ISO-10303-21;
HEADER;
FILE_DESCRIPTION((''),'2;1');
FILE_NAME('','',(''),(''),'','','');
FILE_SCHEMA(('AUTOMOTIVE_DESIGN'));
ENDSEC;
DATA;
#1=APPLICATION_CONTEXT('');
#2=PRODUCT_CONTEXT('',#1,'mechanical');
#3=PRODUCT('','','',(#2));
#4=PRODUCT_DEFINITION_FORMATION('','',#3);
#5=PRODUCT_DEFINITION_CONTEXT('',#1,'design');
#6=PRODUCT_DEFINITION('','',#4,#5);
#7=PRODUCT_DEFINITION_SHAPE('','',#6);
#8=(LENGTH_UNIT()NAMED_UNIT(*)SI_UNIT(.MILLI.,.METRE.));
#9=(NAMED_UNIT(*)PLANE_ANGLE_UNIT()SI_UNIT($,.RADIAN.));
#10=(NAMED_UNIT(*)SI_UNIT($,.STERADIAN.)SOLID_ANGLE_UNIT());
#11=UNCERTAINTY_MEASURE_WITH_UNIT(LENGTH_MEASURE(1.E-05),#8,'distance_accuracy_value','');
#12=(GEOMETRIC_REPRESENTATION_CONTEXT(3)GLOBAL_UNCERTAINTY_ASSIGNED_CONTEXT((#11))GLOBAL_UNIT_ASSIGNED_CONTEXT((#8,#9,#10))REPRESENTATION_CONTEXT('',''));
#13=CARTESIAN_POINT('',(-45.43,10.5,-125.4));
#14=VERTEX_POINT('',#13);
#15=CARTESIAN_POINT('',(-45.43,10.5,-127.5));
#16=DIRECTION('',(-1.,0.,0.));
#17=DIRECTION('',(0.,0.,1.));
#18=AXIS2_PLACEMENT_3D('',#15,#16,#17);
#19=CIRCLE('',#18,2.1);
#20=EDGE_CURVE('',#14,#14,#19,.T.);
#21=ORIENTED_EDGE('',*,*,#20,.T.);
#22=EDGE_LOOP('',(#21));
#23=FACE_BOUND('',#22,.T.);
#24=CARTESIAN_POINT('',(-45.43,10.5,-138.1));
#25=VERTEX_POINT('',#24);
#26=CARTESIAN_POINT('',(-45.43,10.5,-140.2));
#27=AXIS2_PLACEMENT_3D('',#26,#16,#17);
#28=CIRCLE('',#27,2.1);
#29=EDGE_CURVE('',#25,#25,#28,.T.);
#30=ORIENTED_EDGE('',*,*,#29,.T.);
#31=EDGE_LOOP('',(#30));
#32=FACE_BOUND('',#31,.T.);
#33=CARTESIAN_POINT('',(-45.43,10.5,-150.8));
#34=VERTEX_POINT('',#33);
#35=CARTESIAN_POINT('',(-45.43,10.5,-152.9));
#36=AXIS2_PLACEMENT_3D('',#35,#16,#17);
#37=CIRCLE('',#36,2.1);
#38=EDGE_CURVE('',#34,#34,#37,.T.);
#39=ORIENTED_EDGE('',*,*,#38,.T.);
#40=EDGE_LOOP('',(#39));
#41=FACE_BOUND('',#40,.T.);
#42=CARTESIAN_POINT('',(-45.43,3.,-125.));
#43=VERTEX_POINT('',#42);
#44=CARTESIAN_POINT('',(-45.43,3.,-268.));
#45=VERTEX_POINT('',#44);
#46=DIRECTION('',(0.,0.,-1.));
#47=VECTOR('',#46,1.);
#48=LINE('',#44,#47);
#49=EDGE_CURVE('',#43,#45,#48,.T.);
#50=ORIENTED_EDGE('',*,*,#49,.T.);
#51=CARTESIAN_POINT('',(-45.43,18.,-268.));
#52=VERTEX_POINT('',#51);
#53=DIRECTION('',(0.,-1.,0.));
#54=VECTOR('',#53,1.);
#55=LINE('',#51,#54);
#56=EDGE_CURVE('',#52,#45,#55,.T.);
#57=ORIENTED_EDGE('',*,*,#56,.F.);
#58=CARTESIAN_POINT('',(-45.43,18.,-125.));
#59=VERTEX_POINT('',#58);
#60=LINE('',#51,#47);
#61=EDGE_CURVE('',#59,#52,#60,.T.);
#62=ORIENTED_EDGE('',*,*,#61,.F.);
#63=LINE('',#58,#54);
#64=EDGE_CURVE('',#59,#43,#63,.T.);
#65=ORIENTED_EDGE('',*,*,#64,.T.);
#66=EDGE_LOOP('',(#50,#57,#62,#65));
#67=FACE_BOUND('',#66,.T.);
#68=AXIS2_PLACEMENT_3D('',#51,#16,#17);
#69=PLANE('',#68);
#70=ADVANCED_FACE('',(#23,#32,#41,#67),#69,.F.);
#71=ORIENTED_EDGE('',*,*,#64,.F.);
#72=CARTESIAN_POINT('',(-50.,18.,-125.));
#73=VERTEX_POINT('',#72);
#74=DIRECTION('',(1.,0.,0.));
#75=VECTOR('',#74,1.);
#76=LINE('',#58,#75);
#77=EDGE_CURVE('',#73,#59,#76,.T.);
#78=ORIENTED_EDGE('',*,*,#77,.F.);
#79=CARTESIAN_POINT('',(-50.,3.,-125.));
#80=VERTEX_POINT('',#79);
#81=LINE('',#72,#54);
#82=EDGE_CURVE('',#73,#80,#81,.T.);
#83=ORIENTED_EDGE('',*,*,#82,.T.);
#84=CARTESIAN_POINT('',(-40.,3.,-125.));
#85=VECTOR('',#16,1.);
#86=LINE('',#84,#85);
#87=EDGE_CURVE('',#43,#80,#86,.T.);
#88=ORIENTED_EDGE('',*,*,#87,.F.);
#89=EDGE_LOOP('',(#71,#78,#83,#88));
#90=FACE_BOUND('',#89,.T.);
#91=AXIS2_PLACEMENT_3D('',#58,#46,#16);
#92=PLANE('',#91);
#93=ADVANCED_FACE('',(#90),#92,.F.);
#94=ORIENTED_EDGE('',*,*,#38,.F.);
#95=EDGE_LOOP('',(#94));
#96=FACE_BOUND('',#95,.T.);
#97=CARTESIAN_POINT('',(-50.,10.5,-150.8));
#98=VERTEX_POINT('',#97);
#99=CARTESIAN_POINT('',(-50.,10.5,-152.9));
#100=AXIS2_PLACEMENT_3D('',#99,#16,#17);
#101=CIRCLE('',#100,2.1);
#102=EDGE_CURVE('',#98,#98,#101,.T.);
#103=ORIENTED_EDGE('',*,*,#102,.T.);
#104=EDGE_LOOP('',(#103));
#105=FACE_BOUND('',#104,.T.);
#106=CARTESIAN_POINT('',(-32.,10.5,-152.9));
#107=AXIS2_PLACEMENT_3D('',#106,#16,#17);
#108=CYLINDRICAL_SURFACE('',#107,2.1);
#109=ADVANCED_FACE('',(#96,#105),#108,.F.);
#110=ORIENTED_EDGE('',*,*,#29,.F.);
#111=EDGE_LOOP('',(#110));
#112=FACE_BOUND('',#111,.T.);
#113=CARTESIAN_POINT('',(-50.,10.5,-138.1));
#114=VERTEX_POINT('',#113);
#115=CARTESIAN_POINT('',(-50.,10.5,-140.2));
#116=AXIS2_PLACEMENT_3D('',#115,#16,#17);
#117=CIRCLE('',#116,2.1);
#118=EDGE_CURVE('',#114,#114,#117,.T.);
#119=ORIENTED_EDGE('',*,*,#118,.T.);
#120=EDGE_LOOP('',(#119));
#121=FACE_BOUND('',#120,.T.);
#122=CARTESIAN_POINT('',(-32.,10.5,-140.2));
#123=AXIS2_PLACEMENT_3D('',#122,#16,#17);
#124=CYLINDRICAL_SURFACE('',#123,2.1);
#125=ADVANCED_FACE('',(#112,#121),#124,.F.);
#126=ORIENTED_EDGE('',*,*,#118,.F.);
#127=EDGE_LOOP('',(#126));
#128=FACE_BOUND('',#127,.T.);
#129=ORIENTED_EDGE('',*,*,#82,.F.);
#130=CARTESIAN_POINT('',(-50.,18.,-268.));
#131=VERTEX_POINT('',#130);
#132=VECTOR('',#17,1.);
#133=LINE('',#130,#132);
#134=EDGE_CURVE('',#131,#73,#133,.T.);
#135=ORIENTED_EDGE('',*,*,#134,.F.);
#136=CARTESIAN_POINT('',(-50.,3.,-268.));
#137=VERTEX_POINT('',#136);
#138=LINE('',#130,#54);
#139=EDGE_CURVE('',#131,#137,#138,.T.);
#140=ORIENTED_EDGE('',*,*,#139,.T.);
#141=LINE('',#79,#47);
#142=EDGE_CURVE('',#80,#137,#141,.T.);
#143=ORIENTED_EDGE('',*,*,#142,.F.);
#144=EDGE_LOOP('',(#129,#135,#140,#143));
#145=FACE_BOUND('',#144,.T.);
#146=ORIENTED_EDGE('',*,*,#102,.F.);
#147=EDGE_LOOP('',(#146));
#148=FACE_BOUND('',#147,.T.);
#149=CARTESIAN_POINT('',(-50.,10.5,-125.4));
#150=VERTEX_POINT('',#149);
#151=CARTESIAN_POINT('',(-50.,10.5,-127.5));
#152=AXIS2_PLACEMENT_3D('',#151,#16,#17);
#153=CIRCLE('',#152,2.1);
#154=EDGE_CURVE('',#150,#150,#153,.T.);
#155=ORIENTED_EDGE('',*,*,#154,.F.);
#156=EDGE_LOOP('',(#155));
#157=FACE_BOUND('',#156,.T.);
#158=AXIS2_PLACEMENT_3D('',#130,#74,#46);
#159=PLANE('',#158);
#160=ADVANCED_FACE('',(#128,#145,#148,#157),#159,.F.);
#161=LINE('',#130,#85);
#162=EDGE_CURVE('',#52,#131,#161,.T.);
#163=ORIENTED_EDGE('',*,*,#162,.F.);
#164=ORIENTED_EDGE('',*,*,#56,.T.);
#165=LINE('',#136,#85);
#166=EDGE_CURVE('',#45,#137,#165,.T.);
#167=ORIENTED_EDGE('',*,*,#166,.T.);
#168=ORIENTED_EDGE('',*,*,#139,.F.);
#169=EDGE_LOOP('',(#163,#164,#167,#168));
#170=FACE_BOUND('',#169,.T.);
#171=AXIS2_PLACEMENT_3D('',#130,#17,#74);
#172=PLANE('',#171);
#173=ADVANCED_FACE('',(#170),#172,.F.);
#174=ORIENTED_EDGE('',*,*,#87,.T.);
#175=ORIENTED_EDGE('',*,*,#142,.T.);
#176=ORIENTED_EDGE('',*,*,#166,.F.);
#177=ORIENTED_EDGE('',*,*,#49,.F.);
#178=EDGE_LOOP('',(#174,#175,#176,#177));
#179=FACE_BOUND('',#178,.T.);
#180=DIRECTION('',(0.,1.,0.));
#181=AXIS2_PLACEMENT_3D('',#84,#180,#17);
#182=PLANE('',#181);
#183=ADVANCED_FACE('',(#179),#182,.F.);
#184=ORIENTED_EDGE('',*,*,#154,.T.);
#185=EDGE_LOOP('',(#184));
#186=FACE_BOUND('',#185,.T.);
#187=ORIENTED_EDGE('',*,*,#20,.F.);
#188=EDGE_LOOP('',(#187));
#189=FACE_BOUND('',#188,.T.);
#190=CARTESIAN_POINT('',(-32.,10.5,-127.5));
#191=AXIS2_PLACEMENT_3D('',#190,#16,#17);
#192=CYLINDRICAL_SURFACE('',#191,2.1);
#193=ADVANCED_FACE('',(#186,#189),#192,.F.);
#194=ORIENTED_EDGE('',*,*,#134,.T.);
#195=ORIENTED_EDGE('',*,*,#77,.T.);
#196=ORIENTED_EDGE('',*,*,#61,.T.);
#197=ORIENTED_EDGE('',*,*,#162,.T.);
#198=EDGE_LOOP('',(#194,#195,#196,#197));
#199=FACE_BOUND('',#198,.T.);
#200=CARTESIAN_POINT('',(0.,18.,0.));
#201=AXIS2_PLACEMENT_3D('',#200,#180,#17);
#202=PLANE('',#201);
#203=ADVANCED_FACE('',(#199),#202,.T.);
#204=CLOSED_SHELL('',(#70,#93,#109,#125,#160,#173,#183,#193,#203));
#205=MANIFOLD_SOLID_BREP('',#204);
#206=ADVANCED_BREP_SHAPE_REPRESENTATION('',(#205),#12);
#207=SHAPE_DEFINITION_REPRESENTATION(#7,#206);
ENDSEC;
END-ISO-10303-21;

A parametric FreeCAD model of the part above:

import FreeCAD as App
import Part
import Sketcher
Q = App.Units.Quantity

doc = App.newDocument("Part")
body = doc.addObject("PartDesign::Body", "Body")

sketch1 = body.newObject("Sketcher::SketchObject", "Sketch")
sketch1.AttachmentSupport = (doc.getObject("XZ_Plane"), [""])
sketch1.MapMode = "FlatFace"
sketch1.addGeometry([
    Part.LineSegment(App.Vector(-50, -268, 0), App.Vector(-50, -125, 0)),
    Part.LineSegment(App.Vector(-50, -125, 0), App.Vector(-45.4, -125, 0)),
    Part.LineSegment(App.Vector(-45.4, -125, 0), App.Vector(-45.4, -268, 0)),
    Part.LineSegment(App.Vector(-45.4, -268, 0), App.Vector(-50, -268, 0)),
], False)
sketch1.addConstraint([
    Sketcher.Constraint("Coincident", 0, 2, 1, 1),
    Sketcher.Constraint("Coincident", 1, 2, 2, 1),
    Sketcher.Constraint("Coincident", 2, 2, 3, 1),
    Sketcher.Constraint("Coincident", 3, 2, 0, 1),
    Sketcher.Constraint("Vertical", 0),
    Sketcher.Constraint("Horizontal", 1),
    Sketcher.Constraint("Vertical", 2),
    Sketcher.Constraint("Horizontal", 3),
    Sketcher.Constraint("DistanceY", 0, 1, 0, 2, Q("143 mm")),
    Sketcher.Constraint("DistanceX", 0, 2, -1, 1, Q("50 mm")),
    Sketcher.Constraint("DistanceY", 0, 2, -1, 1, Q("125 mm")),
    Sketcher.Constraint("DistanceX", 1, 1, 1, 2, Q("4.57 mm")),
])
pad1 = body.newObject("PartDesign::Pad", "Pad")
pad1.Profile = sketch1
pad1.Length = 18
pad1.Reversed = True

sketch2 = body.newObject("Sketcher::SketchObject", "Sketch001")
sketch2.AttachmentSupport = (doc.getObject("YZ_Plane"), [""])
sketch2.MapMode = "FlatFace"
sketch2.AttachmentOffset = App.Placement(App.Vector(0, 0, -50), App.Rotation())
sketch2.addGeometry([
    Part.Circle(App.Vector(10.5, -127.5, 0), App.Vector(0, 0, 1), 2.1),
    Part.Circle(App.Vector(10.5, -140.2, 0), App.Vector(0, 0, 1), 2.1),
    Part.Circle(App.Vector(10.5, -152.9, 0), App.Vector(0, 0, 1), 2.1),
], False)
sketch2.addConstraint([
    Sketcher.Constraint("Equal", 0, 1),
    Sketcher.Constraint("Equal", 1, 2),
    Sketcher.Constraint("Vertical", 0, 3, 1, 3),
    Sketcher.Constraint("Vertical", 1, 3, 2, 3),
    Sketcher.Constraint("Diameter", 0, Q("4.2 mm")),
    Sketcher.Constraint("DistanceX", -1, 1, 0, 3, Q("10.5 mm")),
    Sketcher.Constraint("DistanceY", 0, 3, -1, 1, Q("127.5 mm")),
    Sketcher.Constraint("DistanceY", 1, 3, -1, 1, Q("140.2 mm")),
    Sketcher.Constraint("DistanceY", 2, 3, -1, 1, Q("152.9 mm")),
])
pocket1 = body.newObject("PartDesign::Pocket", "Pocket")
pocket1.Profile = sketch2
pocket1.Length = 18
pocket1.Reversed = True

sketch3 = body.newObject("Sketcher::SketchObject", "Sketch002")
sketch3.AttachmentSupport = (doc.getObject("YZ_Plane"), [""])
sketch3.MapMode = "FlatFace"
sketch3.AttachmentOffset = App.Placement(App.Vector(0, 0, -50), App.Rotation())
sketch3.addGeometry([
    Part.LineSegment(App.Vector(3, -270, 0), App.Vector(0, -270, 0)),
    Part.LineSegment(App.Vector(0, -270, 0), App.Vector(0, -125, 0)),
    Part.LineSegment(App.Vector(0, -125, 0), App.Vector(3, -125, 0)),
    Part.LineSegment(App.Vector(3, -125, 0), App.Vector(3, -270, 0)),
], False)
sketch3.addConstraint([
    Sketcher.Constraint("Coincident", 0, 2, 1, 1),
    Sketcher.Constraint("Coincident", 1, 2, 2, 1),
    Sketcher.Constraint("Coincident", 2, 2, 3, 1),
    Sketcher.Constraint("Coincident", 3, 2, 0, 1),
    Sketcher.Constraint("Horizontal", 0),
    Sketcher.Constraint("Vertical", 1),
    Sketcher.Constraint("Horizontal", 2),
    Sketcher.Constraint("Vertical", 3),
    Sketcher.Constraint("PointOnObject", 0, 2, -2),
    Sketcher.Constraint("DistanceX", 0, 2, 0, 1, Q("3 mm")),
    Sketcher.Constraint("DistanceY", 1, 1, 1, 2, Q("145 mm")),
    Sketcher.Constraint("DistanceY", 0, 2, -1, 1, Q("270 mm")),
])
pocket2 = body.newObject("PartDesign::Pocket", "Pocket001")
pocket2.Profile = sketch3
pocket2.Length = 10
pocket2.Reversed = True

doc.recompute()
